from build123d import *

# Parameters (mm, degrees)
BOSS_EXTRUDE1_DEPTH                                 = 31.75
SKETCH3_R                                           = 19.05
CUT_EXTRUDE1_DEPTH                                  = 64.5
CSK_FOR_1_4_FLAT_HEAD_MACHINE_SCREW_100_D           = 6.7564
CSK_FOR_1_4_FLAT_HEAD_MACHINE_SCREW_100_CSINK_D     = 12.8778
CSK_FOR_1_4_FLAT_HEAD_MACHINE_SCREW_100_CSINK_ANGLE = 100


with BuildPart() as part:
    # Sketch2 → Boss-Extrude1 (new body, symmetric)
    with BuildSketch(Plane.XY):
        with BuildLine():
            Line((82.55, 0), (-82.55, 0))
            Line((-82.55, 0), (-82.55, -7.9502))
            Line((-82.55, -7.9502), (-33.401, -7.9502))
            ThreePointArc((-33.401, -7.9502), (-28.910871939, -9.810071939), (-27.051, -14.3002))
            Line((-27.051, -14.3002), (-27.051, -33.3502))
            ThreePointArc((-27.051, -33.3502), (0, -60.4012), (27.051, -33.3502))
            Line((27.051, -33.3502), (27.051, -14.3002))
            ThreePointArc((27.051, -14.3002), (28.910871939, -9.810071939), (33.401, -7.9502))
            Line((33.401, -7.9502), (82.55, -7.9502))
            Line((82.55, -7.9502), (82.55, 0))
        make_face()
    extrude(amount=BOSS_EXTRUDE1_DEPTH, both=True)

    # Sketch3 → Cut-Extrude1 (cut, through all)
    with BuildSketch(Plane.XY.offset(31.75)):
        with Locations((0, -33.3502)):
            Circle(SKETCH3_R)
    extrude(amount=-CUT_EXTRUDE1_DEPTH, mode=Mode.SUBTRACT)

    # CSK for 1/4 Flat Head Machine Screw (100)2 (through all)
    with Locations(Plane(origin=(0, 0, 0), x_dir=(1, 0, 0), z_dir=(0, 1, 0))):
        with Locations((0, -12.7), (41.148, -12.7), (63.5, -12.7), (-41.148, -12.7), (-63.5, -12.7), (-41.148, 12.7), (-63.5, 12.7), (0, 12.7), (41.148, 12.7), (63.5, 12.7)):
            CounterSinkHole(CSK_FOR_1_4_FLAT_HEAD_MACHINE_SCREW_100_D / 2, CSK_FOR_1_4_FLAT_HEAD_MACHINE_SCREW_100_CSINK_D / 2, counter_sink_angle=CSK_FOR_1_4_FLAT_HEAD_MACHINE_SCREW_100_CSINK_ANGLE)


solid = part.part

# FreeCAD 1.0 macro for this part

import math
import FreeCAD as App
import Part
import Sketcher
from FreeCAD import Vector
Q = App.Units.Quantity

doc = App.newDocument("Part")
params = doc.addObject("Spreadsheet::Sheet", "Params")
for row, (alias, value) in enumerate([
    ("sketch1_radius", "0.25 in"),
    ("sketch1_width", "6.5 in"),
    ("sketch1_radius2", "1.065 in"),
    ("sketch1_height", "0.313 in"),
    ("pad1_length", "2.5 in"),
    ("sketch2_diameter", "1.5 in"),
    ("sketch3_diameter", "0.266 in"),
    ("hole_diameter", "0.266 in"),
    ("hole_csink_diameter", "0.507 in"),
], start=1):
    params.set(f"A{row}", alias)
    params.set(f"B{row}", "=" + value)
    params.setAlias(f"B{row}", alias)

body = doc.addObject("PartDesign::Body", "Body")

sketch1 = body.newObject("Sketcher::SketchObject", "Sketch")
sketch1.AttachmentSupport = (doc.getObject("XY_Plane"), [""])
sketch1.MapMode = "FlatFace"
sketch1.addGeometry([
    Part.LineSegment(Vector(82.55, 0, 0), Vector(-82.55, 0, 0)),
    Part.LineSegment(Vector(-82.55, 0, 0), Vector(-82.55, -7.9502, 0)),
    Part.LineSegment(Vector(-82.55, -7.9502, 0), Vector(-33.401, -7.9502, 0)),
    Part.ArcOfCircle(Part.Circle(Vector(-33.401, -14.3002, 0), Vector(0, 0, 1), 6.35), math.radians(0), math.radians(90)),
    Part.LineSegment(Vector(-27.051, -14.3002, 0), Vector(-27.051, -33.3502, 0)),
    Part.ArcOfCircle(Part.Circle(Vector(0, -33.3502, 0), Vector(0, 0, 1), 27.051), math.radians(180), math.radians(360)),
    Part.LineSegment(Vector(27.051, -33.3502, 0), Vector(27.051, -14.3002, 0)),
    Part.ArcOfCircle(Part.Circle(Vector(33.401, -14.3002, 0), Vector(0, 0, 1), 6.35), math.radians(90), math.radians(180)),
    Part.LineSegment(Vector(33.401, -7.9502, 0), Vector(82.55, -7.9502, 0)),
    Part.LineSegment(Vector(82.55, -7.9502, 0), Vector(82.55, 0, 0)),
], False)
sketch1.addConstraint([
    Sketcher.Constraint("Coincident", 0, 2, 1, 1),
    Sketcher.Constraint("Coincident", 1, 2, 2, 1),
    Sketcher.Constraint("Tangent", 2, 2, 3, 2),
    Sketcher.Constraint("Tangent", 3, 1, 4, 1),
    Sketcher.Constraint("Tangent", 4, 2, 5, 1),
    Sketcher.Constraint("Tangent", 5, 2, 6, 1),
    Sketcher.Constraint("Tangent", 6, 2, 7, 2),
    Sketcher.Constraint("Tangent", 7, 1, 8, 1),
    Sketcher.Constraint("Coincident", 8, 2, 9, 1),
    Sketcher.Constraint("Coincident", 9, 2, 0, 1),
    Sketcher.Constraint("Horizontal", 0),
    Sketcher.Constraint("Vertical", 1),
    Sketcher.Constraint("Horizontal", 2),
    Sketcher.Constraint("Vertical", 4),
    Sketcher.Constraint("Vertical", 6),
    Sketcher.Constraint("Horizontal", 8),
    Sketcher.Constraint("Vertical", 9),
    Sketcher.Constraint("Equal", 3, 7),
    Sketcher.Constraint("Symmetric", 0, 2, 9, 2, -1, 1),
    Sketcher.Constraint("Symmetric", 3, 3, 7, 3, -2),
    Sketcher.Constraint("Radius", 3, Q("0.25 in")),
    Sketcher.Constraint("DistanceX", 0, 2, 0, 1, Q("6.5 in")),
    Sketcher.Constraint("Radius", 5, Q("1.065 in")),
    Sketcher.Constraint("DistanceY", 5, 3, 1, 2, Q("1 in")),
    Sketcher.Constraint("DistanceY", 1, 2, 1, 1, Q("0.313 in")),
])
sketch1.setExpression("Constraints[20]", "Params.sketch1_radius")
sketch1.setExpression("Constraints[21]", "Params.sketch1_width")
sketch1.setExpression("Constraints[22]", "Params.sketch1_radius2")
sketch1.setExpression("Constraints[24]", "Params.sketch1_height")
pad1 = body.newObject("PartDesign::Pad", "Pad")
pad1.Profile = sketch1
pad1.setExpression("Length", "Params.pad1_length")
pad1.Midplane = True

sketch2 = body.newObject("Sketcher::SketchObject", "Sketch001")
sketch2.AttachmentSupport = (doc.getObject("XY_Plane"), [""])
sketch2.MapMode = "FlatFace"
sketch2.AttachmentOffset = App.Placement(Vector(0, 0, 1.25 * 25.4), App.Rotation())
sketch2.addGeometry(Part.Circle(Vector(0, -33.3502, 0), Vector(0, 0, 1), 19.05), False)
sketch2.addConstraint([
    Sketcher.Constraint("PointOnObject", 0, 3, -2),
    Sketcher.Constraint("Diameter", 0, Q("1.5 in")),
    Sketcher.Constraint("DistanceY", 0, 3, -1, 1, Q("1.313 in")),
])
sketch2.setExpression("Constraints[1]", "Params.sketch2_diameter")
pocket1 = body.newObject("PartDesign::Pocket", "Pocket")
pocket1.Profile = sketch2
pocket1.Type = "ThroughAll"

sketch3 = body.newObject("Sketcher::SketchObject", "Sketch002")
sketch3.AttachmentSupport = (doc.getObject("XZ_Plane"), [""])
sketch3.MapMode = "FlatFace"
sketch3.addGeometry([
    Part.Circle(Vector(0, 12.7, 0), Vector(0, 0, 1), 3.3782),
    Part.Circle(Vector(41.148, 12.7, 0), Vector(0, 0, 1), 3.3782),
    Part.Circle(Vector(63.5, 12.7, 0), Vector(0, 0, 1), 3.3782),
    Part.Circle(Vector(-41.148, 12.7, 0), Vector(0, 0, 1), 3.3782),
    Part.Circle(Vector(-63.5, 12.7, 0), Vector(0, 0, 1), 3.3782),
    Part.Circle(Vector(-41.148, -12.7, 0), Vector(0, 0, 1), 3.3782),
    Part.Circle(Vector(-63.5, -12.7, 0), Vector(0, 0, 1), 3.3782),
    Part.Circle(Vector(0, -12.7, 0), Vector(0, 0, 1), 3.3782),
    Part.Circle(Vector(41.148, -12.7, 0), Vector(0, 0, 1), 3.3782),
    Part.Circle(Vector(63.5, -12.7, 0), Vector(0, 0, 1), 3.3782),
], False)
sketch3.addConstraint([
    Sketcher.Constraint("Equal", 0, 1),
    Sketcher.Constraint("Equal", 1, 2),
    Sketcher.Constraint("Equal", 2, 3),
    Sketcher.Constraint("Equal", 3, 4),
    Sketcher.Constraint("Equal", 4, 5),
    Sketcher.Constraint("Equal", 5, 6),
    Sketcher.Constraint("Equal", 6, 7),
    Sketcher.Constraint("Equal", 7, 8),
    Sketcher.Constraint("Equal", 8, 9),
    Sketcher.Constraint("Symmetric", 1, 3, 5, 3, -1, 1),
    Sketcher.Constraint("Symmetric", 2, 3, 6, 3, -1, 1),
    Sketcher.Constraint("Symmetric", 0, 3, 7, 3, -1, 1),
    Sketcher.Constraint("Symmetric", 3, 3, 8, 3, -1, 1),
    Sketcher.Constraint("Symmetric", 4, 3, 9, 3, -1, 1),
    Sketcher.Constraint("Symmetric", 1, 3, 3, 3, -2),
    Sketcher.Constraint("Symmetric", 2, 3, 4, 3, -2),
    Sketcher.Constraint("PointOnObject", 0, 3, -2),
    Sketcher.Constraint("Horizontal", 0, 3, 1, 3),
    Sketcher.Constraint("Horizontal", 1, 3, 2, 3),
    Sketcher.Constraint("Diameter", 0, Q("0.266 in")),
    Sketcher.Constraint("DistanceX", 4, 3, 2, 3, Q("5 in")),
    Sketcher.Constraint("DistanceY", 5, 3, 3, 3, Q("1 in")),
    Sketcher.Constraint("DistanceX", -1, 1, 1, 3, Q("1.62 in")),
])
sketch3.setExpression("Constraints[19]", "Params.sketch3_diameter")
doc.recompute()
hole = body.newObject("PartDesign::Hole", "Hole")
hole.Profile = sketch3
hole.ThreadType = "None"
hole.setExpression("Diameter", "Params.hole_diameter")
hole.DepthType = "ThroughAll"
hole.HoleCutType = "Countersink"
hole.setExpression("HoleCutDiameter", "Params.hole_csink_diameter")
hole.HoleCutCountersinkAngle = 100
hole.Reversed = True

doc.recompute()
